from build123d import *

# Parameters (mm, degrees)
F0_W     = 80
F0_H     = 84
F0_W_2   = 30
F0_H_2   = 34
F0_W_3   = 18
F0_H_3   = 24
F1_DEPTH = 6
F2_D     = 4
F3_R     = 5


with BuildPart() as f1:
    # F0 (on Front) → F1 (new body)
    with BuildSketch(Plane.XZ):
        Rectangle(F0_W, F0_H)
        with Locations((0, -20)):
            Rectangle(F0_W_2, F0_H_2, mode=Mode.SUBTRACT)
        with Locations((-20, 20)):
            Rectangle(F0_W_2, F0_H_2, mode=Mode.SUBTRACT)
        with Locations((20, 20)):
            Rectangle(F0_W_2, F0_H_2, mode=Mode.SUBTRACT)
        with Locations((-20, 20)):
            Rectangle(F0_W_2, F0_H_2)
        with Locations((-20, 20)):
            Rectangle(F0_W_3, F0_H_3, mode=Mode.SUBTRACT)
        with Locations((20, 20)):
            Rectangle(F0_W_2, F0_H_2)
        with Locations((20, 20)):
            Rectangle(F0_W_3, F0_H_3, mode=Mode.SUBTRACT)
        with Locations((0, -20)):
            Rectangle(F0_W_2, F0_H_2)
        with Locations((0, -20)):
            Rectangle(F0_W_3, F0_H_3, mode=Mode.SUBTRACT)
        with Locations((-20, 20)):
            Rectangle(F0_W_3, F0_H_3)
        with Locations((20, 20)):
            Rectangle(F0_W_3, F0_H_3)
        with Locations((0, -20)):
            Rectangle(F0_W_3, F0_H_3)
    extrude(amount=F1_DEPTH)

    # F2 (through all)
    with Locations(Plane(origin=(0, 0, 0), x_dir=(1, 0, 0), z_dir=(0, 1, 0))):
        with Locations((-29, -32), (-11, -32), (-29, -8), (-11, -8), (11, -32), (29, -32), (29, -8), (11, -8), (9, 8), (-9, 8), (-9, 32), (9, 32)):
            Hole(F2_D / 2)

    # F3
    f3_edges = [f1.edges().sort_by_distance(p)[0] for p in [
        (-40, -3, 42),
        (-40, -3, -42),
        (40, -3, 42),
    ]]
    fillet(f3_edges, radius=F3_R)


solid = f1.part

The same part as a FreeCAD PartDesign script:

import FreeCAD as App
import Part
import Sketcher


def edges_at(feature, points):
    """Names of the edges that pass closest to the given points."""
    edges = feature.Shape.Edges
    near = lambda p: min(range(len(edges)), key=lambda i: edges[i].distToShape(Part.Vertex(*p))[0])
    return sorted({f"Edge{near(p) + 1}" for p in points})

doc = App.newDocument("Part")
body = doc.addObject("PartDesign::Body", "Body")

# Sketch on XZ plane
sketch1 = body.newObject("Sketcher::SketchObject", "Sketch")
sketch1.AttachmentSupport = (doc.getObject("XZ_Plane"), [""])
sketch1.MapMode = "FlatFace"
sketch1.addGeometry([
    Part.LineSegment(App.Vector(-40, 42, 0), App.Vector(-40, -42, 0)),
    Part.LineSegment(App.Vector(-40, -42, 0), App.Vector(40, -42, 0)),
    Part.LineSegment(App.Vector(40, -42, 0), App.Vector(40, 42, 0)),
    Part.LineSegment(App.Vector(40, 42, 0), App.Vector(-40, 42, 0)),
], False)
sketch1.addConstraint([
    Sketcher.Constraint("Coincident", 0, 2, 1, 1),
    Sketcher.Constraint("Coincident", 1, 2, 2, 1),
    Sketcher.Constraint("Coincident", 2, 2, 3, 1),
    Sketcher.Constraint("Coincident", 3, 2, 0, 1),
    Sketcher.Constraint("Vertical", 0),
    Sketcher.Constraint("Horizontal", 1),
    Sketcher.Constraint("Vertical", 2),
    Sketcher.Constraint("Horizontal", 3),
    Sketcher.Constraint("Symmetric", 0, 2, 2, 2, -1, 1),
    Sketcher.Constraint("DistanceX", 1, 1, 1, 2, 80.0),
    Sketcher.Constraint("DistanceY", 0, 2, 0, 1, 84.0),
])
pad1 = body.newObject("PartDesign::Pad", "Pad")
pad1.Profile = sketch1
pad1.Length = 6

# Sketch on XZ plane
sketch2 = body.newObject("Sketcher::SketchObject", "Sketch001")
sketch2.AttachmentSupport = (doc.getObject("XZ_Plane"), [""])
sketch2.MapMode = "FlatFace"
sketch2.addGeometry([
    Part.Circle(App.Vector(-29, 32, 0), App.Vector(0, 0, 1), 2),  # 0
    Part.Circle(App.Vector(-11, 32, 0), App.Vector(0, 0, 1), 2),  # 1
    Part.Circle(App.Vector(-29, 8, 0), App.Vector(0, 0, 1), 2),  # 2
    Part.Circle(App.Vector(-11, 8, 0), App.Vector(0, 0, 1), 2),  # 3
    Part.Circle(App.Vector(11, 32, 0), App.Vector(0, 0, 1), 2),  # 4
    Part.Circle(App.Vector(29, 32, 0), App.Vector(0, 0, 1), 2),  # 5
    Part.Circle(App.Vector(29, 8, 0), App.Vector(0, 0, 1), 2),  # 6
    Part.Circle(App.Vector(11, 8, 0), App.Vector(0, 0, 1), 2),  # 7
    Part.Circle(App.Vector(9, -8, 0), App.Vector(0, 0, 1), 2),  # 8
    Part.Circle(App.Vector(-9, -8, 0), App.Vector(0, 0, 1), 2),  # 9
    Part.Circle(App.Vector(-9, -32, 0), App.Vector(0, 0, 1), 2),  # 10
    Part.Circle(App.Vector(9, -32, 0), App.Vector(0, 0, 1), 2),  # 11
], False)
sketch2.addConstraint([
    Sketcher.Constraint("Equal", 0, 1),
    Sketcher.Constraint("Equal", 1, 2),
    Sketcher.Constraint("Equal", 2, 3),
    Sketcher.Constraint("Equal", 3, 4),
    Sketcher.Constraint("Equal", 4, 5),
    Sketcher.Constraint("Equal", 5, 6),
    Sketcher.Constraint("Equal", 6, 7),
    Sketcher.Constraint("Equal", 7, 8),
    Sketcher.Constraint("Equal", 8, 9),
    Sketcher.Constraint("Equal", 9, 10),
    Sketcher.Constraint("Equal", 10, 11),
    Sketcher.Constraint("Symmetric", 1, 3, 4, 3, -2),
    Sketcher.Constraint("Symmetric", 0, 3, 5, 3, -2),
    Sketcher.Constraint("Symmetric", 2, 3, 6, 3, -2),
    Sketcher.Constraint("Symmetric", 3, 3, 7, 3, -2),
    Sketcher.Constraint("Symmetric", 8, 3, 9, 3, -2),
    Sketcher.Constraint("Symmetric", 10, 3, 11, 3, -2),
    Sketcher.Constraint("Horizontal", 0, 3, 1, 3),
    Sketcher.Constraint("Horizontal", 2, 3, 3, 3),
    Sketcher.Constraint("Vertical", 0, 3, 2, 3),
    Sketcher.Constraint("Vertical", 1, 3, 3, 3),
    Sketcher.Constraint("Vertical", 9, 3, 10, 3),
    Sketcher.Constraint("Diameter", 0, 4.0),
    Sketcher.Constraint("DistanceX", 0, 3, -1, 1, 29.0),
    Sketcher.Constraint("DistanceY", -1, 1, 0, 3, 32.0),
    Sketcher.Constraint("DistanceX", 1, 3, -1, 1, 11.0),
    Sketcher.Constraint("DistanceY", -1, 1, 2, 3, 8.0),
    Sketcher.Constraint("DistanceX", -1, 1, 8, 3, 9.0),
    Sketcher.Constraint("DistanceY", 8, 3, -1, 1, 8.0),
    Sketcher.Constraint("DistanceY", 10, 3, -1, 1, 32.0),
])
doc.recompute()
hole = body.newObject("PartDesign::Hole", "Hole")
hole.Profile = sketch2
hole.ThreadType = "None"
hole.Diameter = 4
hole.DepthType = "ThroughAll"
hole.Reversed = True
doc.recompute()

fillet = body.newObject("PartDesign::Fillet", "Fillet")
fillet.Base = (hole, edges_at(hole, [(-40, -3, 42), (-40, -3, -42), (40, -3, 42)]))
fillet.Radius = 5

doc.recompute()
